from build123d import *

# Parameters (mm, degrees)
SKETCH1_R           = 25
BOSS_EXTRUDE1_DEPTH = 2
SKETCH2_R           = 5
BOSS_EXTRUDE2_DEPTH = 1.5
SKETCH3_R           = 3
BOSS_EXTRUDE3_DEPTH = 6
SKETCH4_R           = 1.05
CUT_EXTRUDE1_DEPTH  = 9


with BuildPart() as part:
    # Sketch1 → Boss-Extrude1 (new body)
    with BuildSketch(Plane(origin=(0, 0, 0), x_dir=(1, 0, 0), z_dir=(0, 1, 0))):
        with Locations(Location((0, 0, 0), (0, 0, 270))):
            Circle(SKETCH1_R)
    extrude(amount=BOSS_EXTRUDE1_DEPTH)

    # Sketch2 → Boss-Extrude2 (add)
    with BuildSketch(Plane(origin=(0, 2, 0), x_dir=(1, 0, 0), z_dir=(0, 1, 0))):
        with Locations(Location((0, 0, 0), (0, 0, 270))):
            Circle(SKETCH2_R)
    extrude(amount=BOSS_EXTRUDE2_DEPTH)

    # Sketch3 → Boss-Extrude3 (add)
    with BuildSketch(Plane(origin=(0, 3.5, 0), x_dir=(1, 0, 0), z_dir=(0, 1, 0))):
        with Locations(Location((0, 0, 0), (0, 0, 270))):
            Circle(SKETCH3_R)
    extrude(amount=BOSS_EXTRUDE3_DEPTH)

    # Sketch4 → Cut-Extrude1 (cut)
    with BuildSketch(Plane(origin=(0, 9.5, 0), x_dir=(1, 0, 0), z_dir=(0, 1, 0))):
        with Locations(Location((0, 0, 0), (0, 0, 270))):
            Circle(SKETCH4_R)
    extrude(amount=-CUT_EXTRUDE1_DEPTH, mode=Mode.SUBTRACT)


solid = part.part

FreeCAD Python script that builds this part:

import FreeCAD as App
import Part
import Sketcher

V = App.Vector
Q = App.Units.Quantity

doc = App.newDocument("Part")
body = doc.addObject("PartDesign::Body", "Body")

# Sketch on XZ plane
sketch1 = body.newObject("Sketcher::SketchObject", "Sketch")
sketch1.AttachmentSupport = (doc.getObject("XZ_Plane"), [""])
sketch1.MapMode = "FlatFace"
sketch1.addGeometry(Part.Circle(V(0, 0, 0), V(0, 0, 1), 25), False)
sketch1.addConstraint([
    Sketcher.Constraint("Coincident", 0, 3, -1, 1),
    Sketcher.Constraint("Diameter", 0, Q("50 mm")),
])
pad1 = body.newObject("PartDesign::Pad", "Pad")
pad1.Profile = sketch1
pad1.Length = 2
pad1.Reversed = True

# Sketch on XZ plane
sketch2 = body.newObject("Sketcher::SketchObject", "Sketch001")
sketch2.AttachmentSupport = (doc.getObject("XZ_Plane"), [""])
sketch2.MapMode = "FlatFace"
sketch2.AttachmentOffset = App.Placement(V(0, 0, -2), App.Rotation())
sketch2.addGeometry(Part.Circle(V(0, 0, 0), V(0, 0, 1), 5), False)
sketch2.addConstraint([
    Sketcher.Constraint("Coincident", 0, 3, -1, 1),
    Sketcher.Constraint("Diameter", 0, Q("10 mm")),
])
pad2 = body.newObject("PartDesign::Pad", "Pad001")
pad2.Profile = sketch2
pad2.Length = 1.5
pad2.Reversed = True

# Sketch on XZ plane
sketch3 = body.newObject("Sketcher::SketchObject", "Sketch002")
sketch3.AttachmentSupport = (doc.getObject("XZ_Plane"), [""])
sketch3.MapMode = "FlatFace"
sketch3.AttachmentOffset = App.Placement(V(0, 0, -3.5), App.Rotation())
sketch3.addGeometry(Part.Circle(V(0, 0, 0), V(0, 0, 1), 3), False)
sketch3.addConstraint([
    Sketcher.Constraint("Coincident", 0, 3, -1, 1),
    Sketcher.Constraint("Diameter", 0, Q("6 mm")),
])
pad3 = body.newObject("PartDesign::Pad", "Pad002")
pad3.Profile = sketch3
pad3.Length = 6
pad3.Reversed = True

# Sketch on XZ plane
sketch4 = body.newObject("Sketcher::SketchObject", "Sketch003")
sketch4.AttachmentSupport = (doc.getObject("XZ_Plane"), [""])
sketch4.MapMode = "FlatFace"
sketch4.AttachmentOffset = App.Placement(V(0, 0, -9.5), App.Rotation())
sketch4.addGeometry(Part.Circle(V(0, 0, 0), V(0, 0, 1), 1.1), False)
sketch4.addConstraint([
    Sketcher.Constraint("Coincident", 0, 3, -1, 1),
    Sketcher.Constraint("Diameter", 0, Q("2.1 mm")),
])
pocket1 = body.newObject("PartDesign::Pocket", "Pocket")
pocket1.Profile = sketch4
pocket1.Length = 9
pocket1.Reversed = True

doc.recompute()
